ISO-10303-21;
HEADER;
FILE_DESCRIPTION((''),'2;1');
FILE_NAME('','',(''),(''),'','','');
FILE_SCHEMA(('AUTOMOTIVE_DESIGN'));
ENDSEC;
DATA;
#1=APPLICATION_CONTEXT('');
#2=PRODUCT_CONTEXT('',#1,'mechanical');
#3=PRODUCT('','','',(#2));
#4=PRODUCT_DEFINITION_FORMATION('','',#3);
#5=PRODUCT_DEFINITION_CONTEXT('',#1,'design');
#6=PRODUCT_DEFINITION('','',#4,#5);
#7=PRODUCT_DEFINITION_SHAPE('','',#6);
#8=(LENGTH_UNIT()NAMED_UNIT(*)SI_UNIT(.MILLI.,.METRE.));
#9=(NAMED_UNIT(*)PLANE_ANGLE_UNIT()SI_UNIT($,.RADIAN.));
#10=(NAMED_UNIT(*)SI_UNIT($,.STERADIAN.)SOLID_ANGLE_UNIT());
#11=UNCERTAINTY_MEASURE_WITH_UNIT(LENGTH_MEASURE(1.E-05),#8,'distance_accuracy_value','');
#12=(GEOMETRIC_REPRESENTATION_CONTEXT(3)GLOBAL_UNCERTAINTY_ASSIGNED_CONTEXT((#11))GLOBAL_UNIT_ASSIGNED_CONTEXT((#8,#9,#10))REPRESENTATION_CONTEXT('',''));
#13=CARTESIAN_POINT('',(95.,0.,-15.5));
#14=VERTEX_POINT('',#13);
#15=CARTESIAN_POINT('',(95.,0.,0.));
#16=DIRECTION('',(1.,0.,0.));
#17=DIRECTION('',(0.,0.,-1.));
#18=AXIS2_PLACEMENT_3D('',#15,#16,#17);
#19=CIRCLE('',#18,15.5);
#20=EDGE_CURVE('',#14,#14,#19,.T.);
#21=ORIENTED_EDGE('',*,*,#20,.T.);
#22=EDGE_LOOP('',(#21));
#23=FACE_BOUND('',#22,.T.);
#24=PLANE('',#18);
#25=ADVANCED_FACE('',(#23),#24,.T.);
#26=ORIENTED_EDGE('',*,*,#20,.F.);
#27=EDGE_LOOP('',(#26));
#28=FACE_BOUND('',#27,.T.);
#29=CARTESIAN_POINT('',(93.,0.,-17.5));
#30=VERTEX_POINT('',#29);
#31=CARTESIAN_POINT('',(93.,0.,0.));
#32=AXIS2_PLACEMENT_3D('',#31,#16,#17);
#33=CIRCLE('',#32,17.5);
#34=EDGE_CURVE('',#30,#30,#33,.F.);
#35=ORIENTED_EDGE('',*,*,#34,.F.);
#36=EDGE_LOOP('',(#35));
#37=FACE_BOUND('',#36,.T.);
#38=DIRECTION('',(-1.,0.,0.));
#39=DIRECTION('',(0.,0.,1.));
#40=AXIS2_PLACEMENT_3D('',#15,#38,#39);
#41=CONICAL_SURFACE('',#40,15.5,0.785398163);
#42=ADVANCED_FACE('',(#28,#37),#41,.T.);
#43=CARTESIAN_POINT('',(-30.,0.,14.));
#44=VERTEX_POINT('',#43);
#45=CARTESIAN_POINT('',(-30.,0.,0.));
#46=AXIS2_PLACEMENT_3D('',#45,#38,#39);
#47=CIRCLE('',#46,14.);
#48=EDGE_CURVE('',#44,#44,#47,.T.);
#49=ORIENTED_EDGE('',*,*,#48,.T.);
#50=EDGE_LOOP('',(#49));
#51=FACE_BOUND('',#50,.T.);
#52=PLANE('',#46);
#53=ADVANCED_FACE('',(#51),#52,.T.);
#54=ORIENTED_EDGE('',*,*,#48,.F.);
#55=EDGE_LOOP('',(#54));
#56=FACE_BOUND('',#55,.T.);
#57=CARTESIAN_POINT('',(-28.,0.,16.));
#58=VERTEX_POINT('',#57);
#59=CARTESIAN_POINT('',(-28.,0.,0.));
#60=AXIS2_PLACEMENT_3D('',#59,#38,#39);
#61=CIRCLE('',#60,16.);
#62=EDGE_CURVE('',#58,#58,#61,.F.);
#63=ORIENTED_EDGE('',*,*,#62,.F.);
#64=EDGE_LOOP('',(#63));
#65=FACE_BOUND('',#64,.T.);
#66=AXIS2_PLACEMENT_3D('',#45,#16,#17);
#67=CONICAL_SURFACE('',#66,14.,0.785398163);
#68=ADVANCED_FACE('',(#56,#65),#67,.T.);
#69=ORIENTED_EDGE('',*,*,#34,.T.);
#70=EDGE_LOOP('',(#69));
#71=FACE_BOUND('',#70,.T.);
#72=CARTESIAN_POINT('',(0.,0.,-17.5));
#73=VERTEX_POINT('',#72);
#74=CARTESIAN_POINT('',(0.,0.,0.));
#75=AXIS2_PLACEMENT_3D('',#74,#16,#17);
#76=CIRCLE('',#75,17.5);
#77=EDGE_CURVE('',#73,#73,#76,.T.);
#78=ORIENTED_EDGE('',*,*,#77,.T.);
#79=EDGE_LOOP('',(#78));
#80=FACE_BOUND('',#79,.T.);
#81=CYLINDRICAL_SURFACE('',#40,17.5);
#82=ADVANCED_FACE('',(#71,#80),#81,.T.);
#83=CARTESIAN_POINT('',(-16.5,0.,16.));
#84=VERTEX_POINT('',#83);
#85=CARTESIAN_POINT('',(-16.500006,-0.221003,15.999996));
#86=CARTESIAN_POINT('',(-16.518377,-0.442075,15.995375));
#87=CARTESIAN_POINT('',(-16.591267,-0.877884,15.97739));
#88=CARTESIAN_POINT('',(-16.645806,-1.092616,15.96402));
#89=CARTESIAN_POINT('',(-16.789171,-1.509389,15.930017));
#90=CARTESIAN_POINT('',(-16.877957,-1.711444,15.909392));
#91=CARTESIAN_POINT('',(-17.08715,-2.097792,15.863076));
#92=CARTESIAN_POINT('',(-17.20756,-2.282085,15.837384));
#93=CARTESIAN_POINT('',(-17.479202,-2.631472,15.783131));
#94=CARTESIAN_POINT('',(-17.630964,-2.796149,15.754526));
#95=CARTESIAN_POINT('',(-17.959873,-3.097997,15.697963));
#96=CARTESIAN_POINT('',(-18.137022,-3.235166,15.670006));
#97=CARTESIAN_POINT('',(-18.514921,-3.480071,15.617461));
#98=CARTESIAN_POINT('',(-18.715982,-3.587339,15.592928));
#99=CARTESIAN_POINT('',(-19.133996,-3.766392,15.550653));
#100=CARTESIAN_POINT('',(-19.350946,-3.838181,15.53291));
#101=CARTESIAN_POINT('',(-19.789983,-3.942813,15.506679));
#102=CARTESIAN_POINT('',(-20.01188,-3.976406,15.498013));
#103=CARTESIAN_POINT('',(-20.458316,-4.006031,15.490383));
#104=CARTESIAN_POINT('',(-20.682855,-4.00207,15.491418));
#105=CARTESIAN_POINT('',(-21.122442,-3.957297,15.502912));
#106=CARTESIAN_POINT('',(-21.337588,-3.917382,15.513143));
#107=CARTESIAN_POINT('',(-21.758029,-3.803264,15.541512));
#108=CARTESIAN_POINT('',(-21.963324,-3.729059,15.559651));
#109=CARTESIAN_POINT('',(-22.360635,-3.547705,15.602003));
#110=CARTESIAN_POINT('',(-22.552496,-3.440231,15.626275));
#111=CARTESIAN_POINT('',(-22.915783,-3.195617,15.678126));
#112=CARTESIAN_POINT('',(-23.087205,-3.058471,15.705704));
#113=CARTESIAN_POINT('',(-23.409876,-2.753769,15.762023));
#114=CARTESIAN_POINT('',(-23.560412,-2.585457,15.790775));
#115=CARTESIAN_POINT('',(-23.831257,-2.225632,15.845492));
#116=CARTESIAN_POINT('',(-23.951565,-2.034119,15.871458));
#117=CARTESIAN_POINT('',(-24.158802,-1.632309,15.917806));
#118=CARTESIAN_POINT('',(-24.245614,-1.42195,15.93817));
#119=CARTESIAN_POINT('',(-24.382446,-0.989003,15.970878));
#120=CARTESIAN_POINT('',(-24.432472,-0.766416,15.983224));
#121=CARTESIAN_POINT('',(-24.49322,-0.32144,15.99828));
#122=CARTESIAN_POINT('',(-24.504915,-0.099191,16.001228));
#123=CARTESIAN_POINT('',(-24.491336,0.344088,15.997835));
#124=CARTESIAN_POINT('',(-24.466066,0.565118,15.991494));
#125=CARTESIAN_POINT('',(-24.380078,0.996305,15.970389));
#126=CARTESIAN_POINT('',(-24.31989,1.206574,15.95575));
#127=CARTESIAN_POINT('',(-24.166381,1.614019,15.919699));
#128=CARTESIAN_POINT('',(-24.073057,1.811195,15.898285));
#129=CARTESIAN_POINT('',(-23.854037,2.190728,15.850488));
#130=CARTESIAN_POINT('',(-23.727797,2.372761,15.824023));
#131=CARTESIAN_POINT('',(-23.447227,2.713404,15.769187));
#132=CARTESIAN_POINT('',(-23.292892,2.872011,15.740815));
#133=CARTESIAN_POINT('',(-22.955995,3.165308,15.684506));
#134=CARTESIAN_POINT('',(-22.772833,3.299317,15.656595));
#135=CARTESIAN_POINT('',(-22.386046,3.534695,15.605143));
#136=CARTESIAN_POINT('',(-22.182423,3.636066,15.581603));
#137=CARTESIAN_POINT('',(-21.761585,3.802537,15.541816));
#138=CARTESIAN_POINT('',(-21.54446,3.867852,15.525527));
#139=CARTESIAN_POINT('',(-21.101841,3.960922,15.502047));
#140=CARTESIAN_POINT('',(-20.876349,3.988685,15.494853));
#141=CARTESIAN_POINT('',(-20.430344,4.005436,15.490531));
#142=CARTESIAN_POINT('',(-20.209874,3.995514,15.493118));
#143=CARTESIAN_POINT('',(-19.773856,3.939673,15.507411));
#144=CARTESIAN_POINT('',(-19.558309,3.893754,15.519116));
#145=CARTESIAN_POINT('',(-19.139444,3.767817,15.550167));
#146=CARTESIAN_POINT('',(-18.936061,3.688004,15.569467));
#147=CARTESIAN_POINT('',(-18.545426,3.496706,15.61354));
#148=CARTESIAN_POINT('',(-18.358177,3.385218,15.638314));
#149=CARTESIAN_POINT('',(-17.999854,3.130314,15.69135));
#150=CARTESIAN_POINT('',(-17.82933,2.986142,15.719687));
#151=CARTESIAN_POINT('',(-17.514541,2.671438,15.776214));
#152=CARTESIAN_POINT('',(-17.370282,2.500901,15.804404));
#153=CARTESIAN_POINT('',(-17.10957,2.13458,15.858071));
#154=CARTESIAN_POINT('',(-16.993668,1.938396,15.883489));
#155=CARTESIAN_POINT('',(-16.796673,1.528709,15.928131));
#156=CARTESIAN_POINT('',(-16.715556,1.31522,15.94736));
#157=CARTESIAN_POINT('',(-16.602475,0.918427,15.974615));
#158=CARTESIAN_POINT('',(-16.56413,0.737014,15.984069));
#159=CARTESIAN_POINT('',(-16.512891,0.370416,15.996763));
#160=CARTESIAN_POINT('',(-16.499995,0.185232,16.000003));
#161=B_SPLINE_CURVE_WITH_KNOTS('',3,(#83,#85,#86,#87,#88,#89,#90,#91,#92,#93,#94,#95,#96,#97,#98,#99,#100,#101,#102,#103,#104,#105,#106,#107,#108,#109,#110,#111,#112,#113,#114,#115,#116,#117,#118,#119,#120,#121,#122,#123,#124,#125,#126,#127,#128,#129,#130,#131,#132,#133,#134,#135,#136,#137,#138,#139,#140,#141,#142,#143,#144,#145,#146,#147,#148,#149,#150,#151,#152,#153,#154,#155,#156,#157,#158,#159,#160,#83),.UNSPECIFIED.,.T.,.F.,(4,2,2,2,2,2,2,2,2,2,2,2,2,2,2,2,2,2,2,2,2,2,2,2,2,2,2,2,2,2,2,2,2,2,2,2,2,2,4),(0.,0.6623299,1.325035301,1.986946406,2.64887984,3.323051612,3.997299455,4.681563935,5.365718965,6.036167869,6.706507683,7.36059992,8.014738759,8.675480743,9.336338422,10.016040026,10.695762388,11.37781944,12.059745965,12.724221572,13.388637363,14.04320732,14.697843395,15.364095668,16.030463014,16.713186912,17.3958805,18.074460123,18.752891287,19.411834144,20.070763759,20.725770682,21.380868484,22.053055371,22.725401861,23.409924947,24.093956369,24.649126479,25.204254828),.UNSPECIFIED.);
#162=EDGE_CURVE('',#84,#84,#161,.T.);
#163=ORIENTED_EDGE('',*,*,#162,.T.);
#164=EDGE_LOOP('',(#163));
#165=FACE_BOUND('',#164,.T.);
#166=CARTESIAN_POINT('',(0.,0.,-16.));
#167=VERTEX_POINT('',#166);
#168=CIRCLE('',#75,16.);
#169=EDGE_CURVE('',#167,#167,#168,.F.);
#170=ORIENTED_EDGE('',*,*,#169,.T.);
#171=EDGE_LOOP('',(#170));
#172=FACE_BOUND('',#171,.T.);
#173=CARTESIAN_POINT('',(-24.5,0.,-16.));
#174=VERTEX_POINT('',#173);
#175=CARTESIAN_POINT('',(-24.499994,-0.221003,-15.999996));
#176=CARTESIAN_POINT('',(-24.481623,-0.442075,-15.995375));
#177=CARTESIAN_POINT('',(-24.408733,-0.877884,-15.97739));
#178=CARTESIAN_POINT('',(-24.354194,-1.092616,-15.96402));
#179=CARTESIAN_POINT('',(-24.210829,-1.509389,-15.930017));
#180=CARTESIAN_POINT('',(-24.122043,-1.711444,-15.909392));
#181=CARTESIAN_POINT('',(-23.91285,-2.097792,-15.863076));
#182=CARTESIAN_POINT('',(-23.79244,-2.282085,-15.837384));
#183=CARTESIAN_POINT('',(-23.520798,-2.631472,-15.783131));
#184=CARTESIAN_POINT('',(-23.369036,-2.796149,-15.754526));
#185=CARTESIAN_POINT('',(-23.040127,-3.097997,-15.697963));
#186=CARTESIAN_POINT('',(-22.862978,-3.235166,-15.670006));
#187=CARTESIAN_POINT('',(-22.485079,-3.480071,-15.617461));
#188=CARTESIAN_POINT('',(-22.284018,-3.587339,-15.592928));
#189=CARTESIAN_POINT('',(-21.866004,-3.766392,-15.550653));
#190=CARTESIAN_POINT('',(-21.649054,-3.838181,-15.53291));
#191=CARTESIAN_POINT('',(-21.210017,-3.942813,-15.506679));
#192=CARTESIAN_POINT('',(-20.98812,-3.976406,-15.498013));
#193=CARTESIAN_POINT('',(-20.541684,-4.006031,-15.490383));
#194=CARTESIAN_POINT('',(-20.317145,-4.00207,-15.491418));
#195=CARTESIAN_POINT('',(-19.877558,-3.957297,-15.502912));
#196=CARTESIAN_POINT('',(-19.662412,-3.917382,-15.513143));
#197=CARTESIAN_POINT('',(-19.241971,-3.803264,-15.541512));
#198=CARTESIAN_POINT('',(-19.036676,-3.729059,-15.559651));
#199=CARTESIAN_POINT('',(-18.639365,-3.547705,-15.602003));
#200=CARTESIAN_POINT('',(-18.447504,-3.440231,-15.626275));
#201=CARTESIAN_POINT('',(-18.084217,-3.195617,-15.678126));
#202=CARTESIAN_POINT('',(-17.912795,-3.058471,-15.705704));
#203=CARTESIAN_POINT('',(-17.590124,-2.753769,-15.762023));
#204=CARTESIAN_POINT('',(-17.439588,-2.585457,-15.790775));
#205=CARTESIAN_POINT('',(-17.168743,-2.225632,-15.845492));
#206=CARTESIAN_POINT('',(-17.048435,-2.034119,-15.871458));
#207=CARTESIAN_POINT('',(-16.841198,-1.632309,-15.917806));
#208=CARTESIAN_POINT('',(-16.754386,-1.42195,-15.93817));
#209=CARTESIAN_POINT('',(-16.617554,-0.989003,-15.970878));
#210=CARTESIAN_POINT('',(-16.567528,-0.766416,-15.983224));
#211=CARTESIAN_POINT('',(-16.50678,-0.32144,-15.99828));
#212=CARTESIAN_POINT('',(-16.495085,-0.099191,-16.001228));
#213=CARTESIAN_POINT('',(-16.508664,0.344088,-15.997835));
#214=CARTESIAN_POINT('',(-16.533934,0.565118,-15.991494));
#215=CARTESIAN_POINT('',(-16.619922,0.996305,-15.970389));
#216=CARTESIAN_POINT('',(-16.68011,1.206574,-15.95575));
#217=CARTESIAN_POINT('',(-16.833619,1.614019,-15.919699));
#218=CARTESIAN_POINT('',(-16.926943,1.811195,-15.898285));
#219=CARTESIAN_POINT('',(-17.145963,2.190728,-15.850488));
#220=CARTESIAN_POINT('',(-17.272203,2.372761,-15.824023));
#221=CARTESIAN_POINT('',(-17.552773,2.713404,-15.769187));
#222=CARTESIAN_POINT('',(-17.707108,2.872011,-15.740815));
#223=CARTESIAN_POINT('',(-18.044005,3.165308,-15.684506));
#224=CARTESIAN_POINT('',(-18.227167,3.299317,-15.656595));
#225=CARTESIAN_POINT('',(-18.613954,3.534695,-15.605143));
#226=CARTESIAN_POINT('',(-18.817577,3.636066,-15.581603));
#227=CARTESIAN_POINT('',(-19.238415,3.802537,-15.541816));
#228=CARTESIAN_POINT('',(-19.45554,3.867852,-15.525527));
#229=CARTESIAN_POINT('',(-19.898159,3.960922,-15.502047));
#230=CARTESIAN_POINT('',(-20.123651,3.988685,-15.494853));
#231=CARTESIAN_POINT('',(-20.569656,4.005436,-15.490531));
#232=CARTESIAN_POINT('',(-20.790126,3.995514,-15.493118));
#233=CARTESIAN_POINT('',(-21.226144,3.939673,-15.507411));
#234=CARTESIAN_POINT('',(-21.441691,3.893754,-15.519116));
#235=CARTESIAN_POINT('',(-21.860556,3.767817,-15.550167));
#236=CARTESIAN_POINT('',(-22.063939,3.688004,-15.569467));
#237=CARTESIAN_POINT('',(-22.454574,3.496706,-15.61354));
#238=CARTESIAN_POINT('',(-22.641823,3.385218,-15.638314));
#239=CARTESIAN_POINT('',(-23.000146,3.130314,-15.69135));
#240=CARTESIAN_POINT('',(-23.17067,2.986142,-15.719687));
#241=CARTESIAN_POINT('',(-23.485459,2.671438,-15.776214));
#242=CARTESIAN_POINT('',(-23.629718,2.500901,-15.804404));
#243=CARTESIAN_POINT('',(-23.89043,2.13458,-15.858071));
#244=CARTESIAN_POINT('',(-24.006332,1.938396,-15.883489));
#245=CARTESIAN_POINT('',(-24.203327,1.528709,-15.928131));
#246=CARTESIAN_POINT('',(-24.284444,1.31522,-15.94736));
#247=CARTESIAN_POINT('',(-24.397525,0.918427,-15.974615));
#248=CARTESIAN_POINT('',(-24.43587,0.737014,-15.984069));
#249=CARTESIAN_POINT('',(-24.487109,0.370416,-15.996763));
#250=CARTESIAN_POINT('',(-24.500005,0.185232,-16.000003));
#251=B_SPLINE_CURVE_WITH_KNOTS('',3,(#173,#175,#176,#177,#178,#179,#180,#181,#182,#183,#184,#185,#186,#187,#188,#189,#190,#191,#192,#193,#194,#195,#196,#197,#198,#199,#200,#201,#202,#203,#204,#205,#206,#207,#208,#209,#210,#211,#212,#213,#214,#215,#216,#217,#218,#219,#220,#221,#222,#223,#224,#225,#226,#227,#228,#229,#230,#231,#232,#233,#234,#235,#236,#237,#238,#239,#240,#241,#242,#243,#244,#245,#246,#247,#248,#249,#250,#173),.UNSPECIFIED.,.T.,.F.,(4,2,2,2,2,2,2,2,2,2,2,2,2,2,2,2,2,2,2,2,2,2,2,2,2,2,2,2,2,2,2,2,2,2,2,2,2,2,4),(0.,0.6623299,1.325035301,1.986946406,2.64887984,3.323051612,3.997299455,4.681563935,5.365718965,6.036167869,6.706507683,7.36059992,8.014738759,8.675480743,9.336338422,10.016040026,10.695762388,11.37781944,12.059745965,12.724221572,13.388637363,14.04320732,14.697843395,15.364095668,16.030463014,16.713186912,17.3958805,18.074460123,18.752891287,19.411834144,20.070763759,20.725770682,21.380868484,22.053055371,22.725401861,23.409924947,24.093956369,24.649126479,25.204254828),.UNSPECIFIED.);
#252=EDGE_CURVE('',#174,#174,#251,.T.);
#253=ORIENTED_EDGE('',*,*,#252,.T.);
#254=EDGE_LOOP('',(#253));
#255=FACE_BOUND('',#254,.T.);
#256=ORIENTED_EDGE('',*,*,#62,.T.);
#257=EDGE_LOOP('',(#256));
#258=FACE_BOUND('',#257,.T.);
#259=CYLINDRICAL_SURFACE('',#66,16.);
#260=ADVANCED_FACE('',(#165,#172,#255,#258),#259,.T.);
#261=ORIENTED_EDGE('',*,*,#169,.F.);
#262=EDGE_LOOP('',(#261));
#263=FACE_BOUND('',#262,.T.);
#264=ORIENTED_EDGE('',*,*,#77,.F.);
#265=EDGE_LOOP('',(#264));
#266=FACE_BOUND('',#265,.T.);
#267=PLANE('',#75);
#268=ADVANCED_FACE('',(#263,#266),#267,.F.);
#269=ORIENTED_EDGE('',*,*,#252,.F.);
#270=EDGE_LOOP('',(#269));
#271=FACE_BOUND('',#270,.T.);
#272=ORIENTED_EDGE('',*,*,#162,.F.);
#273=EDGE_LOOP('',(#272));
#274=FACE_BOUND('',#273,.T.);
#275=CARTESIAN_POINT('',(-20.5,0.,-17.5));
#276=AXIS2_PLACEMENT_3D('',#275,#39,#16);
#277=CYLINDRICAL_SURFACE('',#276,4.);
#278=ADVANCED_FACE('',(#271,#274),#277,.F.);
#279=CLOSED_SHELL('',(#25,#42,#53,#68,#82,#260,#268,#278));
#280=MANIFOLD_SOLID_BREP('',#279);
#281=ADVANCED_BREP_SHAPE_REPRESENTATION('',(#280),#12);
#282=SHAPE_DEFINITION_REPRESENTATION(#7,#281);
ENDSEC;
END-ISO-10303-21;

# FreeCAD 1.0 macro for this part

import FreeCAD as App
import Part
import Sketcher

V = App.Vector


def edges_at(feature, points):
    """Names of the edges that pass closest to the given points."""
    edges = feature.Shape.Edges
    near = lambda p: min(range(len(edges)), key=lambda i: edges[i].distToShape(Part.Vertex(*p))[0])
    return sorted({f"Edge{near(p) + 1}" for p in points})

doc = App.newDocument("Part")
body = doc.addObject("PartDesign::Body", "Body")

# Sketch on YZ plane
sketch1 = doc.addObject("Sketcher::SketchObject", "Sketch")
body.addObject(sketch1)
sketch1.AttachmentSupport = (doc.YZ_Plane, [""])
sketch1.MapMode = "FlatFace"
sketch1.addGeometry(Part.Circle(V(0, 0, 0), V(0, 0, 1), 18), False)
sketch1.addConstraint(Sketcher.Constraint("Coincident", 0, 3, -1, 1))
sketch1.addConstraint(Sketcher.Constraint("Diameter", 0, 35.0))
pad1 = doc.addObject("PartDesign::Pad", "Pad")
body.addObject(pad1)
pad1.Profile = sketch1
pad1.Length = 95

# Sketch on YZ plane
sketch2 = doc.addObject("Sketcher::SketchObject", "Sketch001")
body.addObject(sketch2)
sketch2.AttachmentSupport = (doc.YZ_Plane, [""])
sketch2.MapMode = "FlatFace"
sketch2.addGeometry(Part.Circle(V(0, 0, 0), V(0, 0, 1), 16), False)
sketch2.addConstraint(Sketcher.Constraint("Coincident", 0, 3, -1, 1))
sketch2.addConstraint(Sketcher.Constraint("Diameter", 0, 32.0))
pad2 = doc.addObject("PartDesign::Pad", "Pad001")
body.addObject(pad2)
pad2.Profile = sketch2
pad2.Length = 30
pad2.Reversed = True
doc.recompute()

chamfer = doc.addObject("PartDesign::Chamfer", "Chamfer")
body.addObject(chamfer)
chamfer.Base = (pad2, edges_at(pad2, [(95, 0, 17.5)]))
chamfer.Size = 2
doc.recompute()

chamfer2 = doc.addObject("PartDesign::Chamfer", "Chamfer001")
body.addObject(chamfer2)
chamfer2.Base = (chamfer, edges_at(chamfer, [(-30, 0, 16)]))
chamfer2.Size = 2

# Sketch on XY plane
sketch3 = doc.addObject("Sketcher::SketchObject", "Sketch002")
body.addObject(sketch3)
sketch3.AttachmentSupport = (doc.XY_Plane, [""])
sketch3.MapMode = "FlatFace"
sketch3.addGeometry(Part.Circle(V(-20.5, 0, 0), V(0, 0, 1), 4), False)
sketch3.addConstraint(Sketcher.Constraint("PointOnObject", 0, 3, -1))
sketch3.addConstraint(Sketcher.Constraint("Diameter", 0, 8.0))
sketch3.addConstraint(Sketcher.Constraint("DistanceX", 0, 3, -1, 1, 20.5))
pocket1 = doc.addObject("PartDesign::Pocket", "Pocket")
body.addObject(pocket1)
pocket1.Profile = sketch3
pocket1.Type = "ThroughAll"
pocket1.Midplane = True

doc.recompute()
